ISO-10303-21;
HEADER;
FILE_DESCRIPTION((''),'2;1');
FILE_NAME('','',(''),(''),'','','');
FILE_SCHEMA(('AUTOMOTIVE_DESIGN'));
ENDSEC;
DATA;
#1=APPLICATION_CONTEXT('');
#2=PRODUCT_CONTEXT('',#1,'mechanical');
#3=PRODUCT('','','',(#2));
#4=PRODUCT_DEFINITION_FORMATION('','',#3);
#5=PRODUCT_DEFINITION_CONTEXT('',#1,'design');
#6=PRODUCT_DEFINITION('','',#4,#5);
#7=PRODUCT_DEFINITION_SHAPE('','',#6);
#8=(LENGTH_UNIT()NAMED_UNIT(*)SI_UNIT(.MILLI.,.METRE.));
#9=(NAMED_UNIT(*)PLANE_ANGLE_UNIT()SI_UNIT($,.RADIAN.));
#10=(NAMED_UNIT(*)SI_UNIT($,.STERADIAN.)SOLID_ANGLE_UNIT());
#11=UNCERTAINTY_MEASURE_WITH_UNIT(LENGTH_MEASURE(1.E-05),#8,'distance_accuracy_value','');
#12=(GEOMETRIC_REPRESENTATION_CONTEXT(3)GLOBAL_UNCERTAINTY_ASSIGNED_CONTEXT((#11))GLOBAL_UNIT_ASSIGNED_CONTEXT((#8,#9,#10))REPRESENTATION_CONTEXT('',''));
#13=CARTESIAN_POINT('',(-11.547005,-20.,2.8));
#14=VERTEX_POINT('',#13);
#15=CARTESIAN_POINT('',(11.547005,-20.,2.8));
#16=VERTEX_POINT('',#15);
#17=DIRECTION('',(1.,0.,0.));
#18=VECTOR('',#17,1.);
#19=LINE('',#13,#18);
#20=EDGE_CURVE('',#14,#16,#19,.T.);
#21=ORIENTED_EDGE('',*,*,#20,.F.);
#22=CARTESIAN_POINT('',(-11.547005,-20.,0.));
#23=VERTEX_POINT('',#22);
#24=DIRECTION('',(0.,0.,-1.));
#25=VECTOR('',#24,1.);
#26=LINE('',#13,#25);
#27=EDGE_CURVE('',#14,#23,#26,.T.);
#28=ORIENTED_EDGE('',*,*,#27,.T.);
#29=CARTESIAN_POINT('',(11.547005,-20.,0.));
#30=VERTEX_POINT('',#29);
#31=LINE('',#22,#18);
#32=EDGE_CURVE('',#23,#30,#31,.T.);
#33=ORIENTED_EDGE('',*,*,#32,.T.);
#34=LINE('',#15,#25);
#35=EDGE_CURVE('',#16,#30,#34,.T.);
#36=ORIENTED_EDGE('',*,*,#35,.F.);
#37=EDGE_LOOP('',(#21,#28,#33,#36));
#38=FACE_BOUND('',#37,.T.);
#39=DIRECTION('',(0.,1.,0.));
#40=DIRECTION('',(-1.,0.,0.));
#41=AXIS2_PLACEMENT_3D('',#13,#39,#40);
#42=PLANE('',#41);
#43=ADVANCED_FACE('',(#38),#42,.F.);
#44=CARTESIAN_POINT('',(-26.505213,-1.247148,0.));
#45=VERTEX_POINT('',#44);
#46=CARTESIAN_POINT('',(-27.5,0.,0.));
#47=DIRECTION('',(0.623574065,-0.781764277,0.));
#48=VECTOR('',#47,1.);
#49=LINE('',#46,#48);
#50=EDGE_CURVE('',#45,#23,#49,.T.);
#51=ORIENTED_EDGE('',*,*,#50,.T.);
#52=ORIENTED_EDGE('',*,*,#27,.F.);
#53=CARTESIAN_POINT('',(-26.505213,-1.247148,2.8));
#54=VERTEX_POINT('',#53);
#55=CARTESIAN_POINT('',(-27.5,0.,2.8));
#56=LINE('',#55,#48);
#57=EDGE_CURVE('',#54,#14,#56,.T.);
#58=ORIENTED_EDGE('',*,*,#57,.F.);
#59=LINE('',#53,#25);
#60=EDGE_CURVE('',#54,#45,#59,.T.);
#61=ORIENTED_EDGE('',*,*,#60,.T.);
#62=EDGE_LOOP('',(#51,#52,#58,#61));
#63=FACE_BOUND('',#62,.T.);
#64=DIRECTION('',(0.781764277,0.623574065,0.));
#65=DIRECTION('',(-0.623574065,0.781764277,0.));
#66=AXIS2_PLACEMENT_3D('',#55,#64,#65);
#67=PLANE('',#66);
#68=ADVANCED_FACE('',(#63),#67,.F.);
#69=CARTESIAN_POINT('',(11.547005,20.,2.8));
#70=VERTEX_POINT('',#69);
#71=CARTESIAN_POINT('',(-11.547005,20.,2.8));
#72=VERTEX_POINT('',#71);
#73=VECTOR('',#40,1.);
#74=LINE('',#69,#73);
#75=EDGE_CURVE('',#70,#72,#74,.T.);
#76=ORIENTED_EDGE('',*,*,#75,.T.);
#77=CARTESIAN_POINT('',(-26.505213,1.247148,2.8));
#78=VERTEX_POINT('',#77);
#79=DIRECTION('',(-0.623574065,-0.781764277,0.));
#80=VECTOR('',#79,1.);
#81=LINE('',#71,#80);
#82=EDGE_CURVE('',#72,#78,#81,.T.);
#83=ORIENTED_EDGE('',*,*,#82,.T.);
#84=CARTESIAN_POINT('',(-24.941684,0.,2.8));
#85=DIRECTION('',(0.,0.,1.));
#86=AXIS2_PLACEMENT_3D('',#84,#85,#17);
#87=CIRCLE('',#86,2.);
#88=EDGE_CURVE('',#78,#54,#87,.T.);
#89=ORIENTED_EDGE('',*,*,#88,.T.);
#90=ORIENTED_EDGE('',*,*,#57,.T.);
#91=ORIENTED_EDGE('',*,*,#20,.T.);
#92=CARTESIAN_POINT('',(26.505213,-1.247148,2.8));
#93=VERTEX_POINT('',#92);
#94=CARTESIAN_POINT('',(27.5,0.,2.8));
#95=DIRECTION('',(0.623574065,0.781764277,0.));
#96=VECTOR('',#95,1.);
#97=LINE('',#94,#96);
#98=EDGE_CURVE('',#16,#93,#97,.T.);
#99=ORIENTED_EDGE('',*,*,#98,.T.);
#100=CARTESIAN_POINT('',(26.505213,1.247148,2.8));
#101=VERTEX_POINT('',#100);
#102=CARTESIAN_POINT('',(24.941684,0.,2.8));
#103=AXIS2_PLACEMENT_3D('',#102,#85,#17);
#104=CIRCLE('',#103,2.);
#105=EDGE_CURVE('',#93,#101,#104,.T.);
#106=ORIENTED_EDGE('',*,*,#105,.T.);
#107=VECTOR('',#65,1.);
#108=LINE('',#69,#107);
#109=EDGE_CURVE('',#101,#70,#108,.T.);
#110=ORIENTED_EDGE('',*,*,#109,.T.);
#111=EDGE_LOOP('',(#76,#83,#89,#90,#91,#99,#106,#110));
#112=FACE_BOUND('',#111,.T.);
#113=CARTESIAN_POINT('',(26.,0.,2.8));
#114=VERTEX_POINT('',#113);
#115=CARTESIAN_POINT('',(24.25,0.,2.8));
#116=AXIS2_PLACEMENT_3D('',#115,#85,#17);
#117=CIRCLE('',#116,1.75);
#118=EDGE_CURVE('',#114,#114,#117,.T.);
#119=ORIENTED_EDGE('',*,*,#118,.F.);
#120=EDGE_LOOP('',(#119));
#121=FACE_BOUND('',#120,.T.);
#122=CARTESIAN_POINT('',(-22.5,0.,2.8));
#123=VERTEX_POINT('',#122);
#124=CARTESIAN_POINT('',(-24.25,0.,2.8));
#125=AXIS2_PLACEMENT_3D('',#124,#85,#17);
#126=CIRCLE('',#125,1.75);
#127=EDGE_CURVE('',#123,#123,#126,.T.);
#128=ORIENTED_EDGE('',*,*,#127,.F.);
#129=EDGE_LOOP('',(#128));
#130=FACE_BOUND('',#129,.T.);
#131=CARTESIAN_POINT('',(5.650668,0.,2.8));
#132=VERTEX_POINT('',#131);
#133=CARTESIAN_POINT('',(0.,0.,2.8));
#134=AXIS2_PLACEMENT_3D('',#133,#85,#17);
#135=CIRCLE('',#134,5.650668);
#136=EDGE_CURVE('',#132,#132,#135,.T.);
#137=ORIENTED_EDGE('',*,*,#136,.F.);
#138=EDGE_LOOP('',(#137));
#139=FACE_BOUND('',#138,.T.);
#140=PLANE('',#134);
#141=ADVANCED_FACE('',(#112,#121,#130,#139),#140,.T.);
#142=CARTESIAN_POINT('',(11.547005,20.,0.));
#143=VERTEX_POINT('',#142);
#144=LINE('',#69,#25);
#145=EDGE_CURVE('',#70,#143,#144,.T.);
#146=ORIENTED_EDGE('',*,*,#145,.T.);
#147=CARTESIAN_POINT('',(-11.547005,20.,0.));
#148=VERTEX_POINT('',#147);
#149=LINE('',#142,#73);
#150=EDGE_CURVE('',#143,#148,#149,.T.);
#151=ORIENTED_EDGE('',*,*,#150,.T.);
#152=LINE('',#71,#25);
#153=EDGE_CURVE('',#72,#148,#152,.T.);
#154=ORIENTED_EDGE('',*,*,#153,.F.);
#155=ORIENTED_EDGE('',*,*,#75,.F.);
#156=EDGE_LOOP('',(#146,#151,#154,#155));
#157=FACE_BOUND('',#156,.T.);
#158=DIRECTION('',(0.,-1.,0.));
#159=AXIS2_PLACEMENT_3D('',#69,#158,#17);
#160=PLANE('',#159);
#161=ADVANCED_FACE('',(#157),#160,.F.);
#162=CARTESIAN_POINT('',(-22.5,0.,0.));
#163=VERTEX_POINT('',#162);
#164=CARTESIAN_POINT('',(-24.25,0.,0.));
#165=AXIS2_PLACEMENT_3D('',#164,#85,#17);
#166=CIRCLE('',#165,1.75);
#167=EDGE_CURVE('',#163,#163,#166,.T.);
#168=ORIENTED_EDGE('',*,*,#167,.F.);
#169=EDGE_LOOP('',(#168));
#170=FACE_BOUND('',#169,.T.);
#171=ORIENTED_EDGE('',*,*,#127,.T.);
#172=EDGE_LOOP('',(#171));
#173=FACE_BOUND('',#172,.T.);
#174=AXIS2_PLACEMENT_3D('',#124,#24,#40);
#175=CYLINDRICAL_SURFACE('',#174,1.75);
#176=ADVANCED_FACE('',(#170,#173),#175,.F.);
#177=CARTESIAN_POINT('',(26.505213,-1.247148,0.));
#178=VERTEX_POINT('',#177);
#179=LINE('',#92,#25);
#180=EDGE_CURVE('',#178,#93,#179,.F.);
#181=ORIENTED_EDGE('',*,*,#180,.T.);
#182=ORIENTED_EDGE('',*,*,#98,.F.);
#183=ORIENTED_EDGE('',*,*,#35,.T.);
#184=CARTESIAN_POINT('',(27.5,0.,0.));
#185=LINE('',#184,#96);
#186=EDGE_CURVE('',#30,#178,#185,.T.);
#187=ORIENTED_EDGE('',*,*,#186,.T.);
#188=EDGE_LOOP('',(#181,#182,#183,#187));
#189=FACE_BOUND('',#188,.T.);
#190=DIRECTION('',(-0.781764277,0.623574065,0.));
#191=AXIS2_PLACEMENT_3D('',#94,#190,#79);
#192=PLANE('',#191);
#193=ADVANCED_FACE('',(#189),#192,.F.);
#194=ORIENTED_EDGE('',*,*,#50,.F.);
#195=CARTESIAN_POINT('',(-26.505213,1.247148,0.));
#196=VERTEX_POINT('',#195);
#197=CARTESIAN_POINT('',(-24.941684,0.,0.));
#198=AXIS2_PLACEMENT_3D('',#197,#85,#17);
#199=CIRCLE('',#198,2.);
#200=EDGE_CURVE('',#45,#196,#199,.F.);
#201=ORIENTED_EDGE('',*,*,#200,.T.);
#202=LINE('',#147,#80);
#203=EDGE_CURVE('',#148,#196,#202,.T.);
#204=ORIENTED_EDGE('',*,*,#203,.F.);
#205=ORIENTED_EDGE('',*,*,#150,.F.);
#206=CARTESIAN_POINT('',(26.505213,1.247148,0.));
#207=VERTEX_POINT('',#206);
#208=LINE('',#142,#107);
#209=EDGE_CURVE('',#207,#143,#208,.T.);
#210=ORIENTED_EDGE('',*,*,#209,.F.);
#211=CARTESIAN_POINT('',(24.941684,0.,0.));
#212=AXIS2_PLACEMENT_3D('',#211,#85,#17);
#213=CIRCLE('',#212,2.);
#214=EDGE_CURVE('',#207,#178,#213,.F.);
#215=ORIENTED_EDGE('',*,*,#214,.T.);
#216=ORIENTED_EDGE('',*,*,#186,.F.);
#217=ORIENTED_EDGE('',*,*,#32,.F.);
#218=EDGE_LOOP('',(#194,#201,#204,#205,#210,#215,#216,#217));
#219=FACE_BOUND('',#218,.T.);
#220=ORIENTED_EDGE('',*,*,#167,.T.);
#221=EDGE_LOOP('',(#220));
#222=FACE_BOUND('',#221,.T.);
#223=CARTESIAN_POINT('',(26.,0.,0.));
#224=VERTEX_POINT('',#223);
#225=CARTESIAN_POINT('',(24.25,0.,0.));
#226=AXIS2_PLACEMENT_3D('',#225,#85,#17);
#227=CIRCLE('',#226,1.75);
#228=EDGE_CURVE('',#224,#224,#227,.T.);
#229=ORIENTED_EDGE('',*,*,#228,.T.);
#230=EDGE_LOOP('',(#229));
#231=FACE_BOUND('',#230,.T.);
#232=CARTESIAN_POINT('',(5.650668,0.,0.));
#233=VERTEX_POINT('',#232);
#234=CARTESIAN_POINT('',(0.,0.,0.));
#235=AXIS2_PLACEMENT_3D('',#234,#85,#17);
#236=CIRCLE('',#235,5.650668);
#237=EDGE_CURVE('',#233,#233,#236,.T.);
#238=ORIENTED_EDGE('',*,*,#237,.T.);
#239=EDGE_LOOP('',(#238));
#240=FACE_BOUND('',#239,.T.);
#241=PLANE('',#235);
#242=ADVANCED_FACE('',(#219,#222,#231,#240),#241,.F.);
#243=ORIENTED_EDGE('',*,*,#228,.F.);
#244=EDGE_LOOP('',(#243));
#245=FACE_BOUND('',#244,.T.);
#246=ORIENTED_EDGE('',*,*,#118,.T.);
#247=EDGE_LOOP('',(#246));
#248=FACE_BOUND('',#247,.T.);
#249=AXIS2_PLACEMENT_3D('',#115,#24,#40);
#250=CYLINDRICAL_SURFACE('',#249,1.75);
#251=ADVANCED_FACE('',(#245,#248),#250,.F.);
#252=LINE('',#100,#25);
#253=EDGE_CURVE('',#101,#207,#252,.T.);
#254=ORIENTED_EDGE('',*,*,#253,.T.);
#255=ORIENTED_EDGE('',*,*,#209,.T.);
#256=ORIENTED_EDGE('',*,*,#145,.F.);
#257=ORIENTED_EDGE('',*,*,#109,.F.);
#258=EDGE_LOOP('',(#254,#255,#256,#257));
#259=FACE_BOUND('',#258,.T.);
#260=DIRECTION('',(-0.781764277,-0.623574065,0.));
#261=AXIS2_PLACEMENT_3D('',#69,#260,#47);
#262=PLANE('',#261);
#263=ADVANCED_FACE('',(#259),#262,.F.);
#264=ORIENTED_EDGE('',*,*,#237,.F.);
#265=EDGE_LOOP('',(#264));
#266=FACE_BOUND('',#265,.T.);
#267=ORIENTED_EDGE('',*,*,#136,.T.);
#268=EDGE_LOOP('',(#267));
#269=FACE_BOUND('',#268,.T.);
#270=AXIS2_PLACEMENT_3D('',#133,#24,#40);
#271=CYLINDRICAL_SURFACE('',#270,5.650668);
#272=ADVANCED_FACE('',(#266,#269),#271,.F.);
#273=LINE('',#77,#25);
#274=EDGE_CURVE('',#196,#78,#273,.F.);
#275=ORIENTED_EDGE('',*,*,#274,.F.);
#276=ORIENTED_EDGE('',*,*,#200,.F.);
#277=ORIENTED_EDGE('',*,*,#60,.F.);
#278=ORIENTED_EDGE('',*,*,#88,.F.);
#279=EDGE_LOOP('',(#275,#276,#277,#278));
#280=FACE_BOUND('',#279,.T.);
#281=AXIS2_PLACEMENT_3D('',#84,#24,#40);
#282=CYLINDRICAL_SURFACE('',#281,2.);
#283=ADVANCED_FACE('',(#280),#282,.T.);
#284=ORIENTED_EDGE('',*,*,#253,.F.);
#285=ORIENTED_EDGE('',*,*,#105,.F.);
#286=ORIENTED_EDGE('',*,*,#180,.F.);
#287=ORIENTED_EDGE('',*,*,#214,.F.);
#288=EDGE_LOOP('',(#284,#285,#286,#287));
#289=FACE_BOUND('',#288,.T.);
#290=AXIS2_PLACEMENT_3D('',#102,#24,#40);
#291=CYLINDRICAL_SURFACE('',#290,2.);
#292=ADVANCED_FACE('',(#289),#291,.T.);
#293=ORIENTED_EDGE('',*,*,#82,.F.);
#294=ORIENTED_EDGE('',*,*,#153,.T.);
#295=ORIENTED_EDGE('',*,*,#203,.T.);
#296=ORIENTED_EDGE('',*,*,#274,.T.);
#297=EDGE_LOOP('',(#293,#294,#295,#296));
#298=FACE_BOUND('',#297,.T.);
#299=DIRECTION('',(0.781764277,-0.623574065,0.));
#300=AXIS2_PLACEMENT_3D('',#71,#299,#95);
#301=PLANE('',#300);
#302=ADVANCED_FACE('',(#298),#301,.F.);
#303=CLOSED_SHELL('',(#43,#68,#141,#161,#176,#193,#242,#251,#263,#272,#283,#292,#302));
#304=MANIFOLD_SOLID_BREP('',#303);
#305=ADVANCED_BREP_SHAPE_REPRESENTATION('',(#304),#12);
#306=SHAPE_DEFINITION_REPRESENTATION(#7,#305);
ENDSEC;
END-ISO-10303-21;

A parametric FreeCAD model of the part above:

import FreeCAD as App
import Part
import Sketcher
Q = App.Units.Quantity


def edges_at(feature, points):
    """Names of the edges that pass closest to the given points."""
    edges = feature.Shape.Edges
    near = lambda p: min(range(len(edges)), key=lambda i: edges[i].distToShape(Part.Vertex(*p))[0])
    return sorted({f"Edge{near(p) + 1}" for p in points})


def add_polygon(sketch, points):
    """Adds a closed chain of lines whose ends are joined by coincident constraints."""
    first, n = sketch.GeometryCount, len(points)
    for a, b in zip(points, points[1:] + points[:1]):
        sketch.addGeometry(Part.LineSegment(App.Vector(*a, 0), App.Vector(*b, 0)), False)
    for i in range(n):
        sketch.addConstraint(Sketcher.Constraint("Coincident", first + i, 2, first + (i + 1) % n, 1))

doc = App.newDocument("Part")
body = doc.addObject("PartDesign::Body", "Body")

sketch1 = body.newObject("Sketcher::SketchObject", "Sketch")
sketch1.AttachmentSupport = (doc.getObject("XY_Plane"), [""])
sketch1.MapMode = "FlatFace"
add_polygon(sketch1, [(27.5, 0), (11.5, 20), (-11.5, 20), (-27.5, 0), (-11.5, -20), (11.5, -20)])
sketch1.addGeometry(Part.Circle(App.Vector(24.2, 0, 0), App.Vector(0, 0, 1), 1.8), False)
sketch1.addGeometry(Part.Circle(App.Vector(0, 0, 0), App.Vector(0, 0, 1), 5.7), False)
sketch1.addGeometry(Part.Circle(App.Vector(-24.2, 0, 0), App.Vector(0, 0, 1), 1.8), False)
sketch1.addConstraint(Sketcher.Constraint("Horizontal", 1))
sketch1.addConstraint(Sketcher.Constraint("Horizontal", 4))
sketch1.addConstraint(Sketcher.Constraint("Coincident", 7, 3, -1, 1))
sketch1.addConstraint(Sketcher.Constraint("Equal", 6, 8))
sketch1.addConstraint(Sketcher.Constraint("Symmetric", 6, 3, 8, 3, -1, 1))
sketch1.addConstraint(Sketcher.Constraint("Symmetric", 0, 2, 3, 2, -1, 1))
sketch1.addConstraint(Sketcher.Constraint("Symmetric", 2, 2, 5, 2, -1, 1))
sketch1.addConstraint(Sketcher.Constraint("PointOnObject", 6, 3, -1))
sketch1.addConstraint(Sketcher.Constraint("PointOnObject", 2, 2, -1))
sketch1.addConstraint(Sketcher.Constraint("Parallel", 2, 5))
sketch1.addConstraint(Sketcher.Constraint("Vertical", 1, 2, 3, 2))
sketch1.addConstraint(Sketcher.Constraint("Diameter", 6, Q("3.5 mm")))
sketch1.addConstraint(Sketcher.Constraint("DistanceY", -1, 1, 0, 2, Q("20 mm")))
sketch1.addConstraint(Sketcher.Constraint("DistanceX", 2, 2, -1, 1, Q("27.5 mm")))
sketch1.addConstraint(Sketcher.Constraint("DistanceX", 8, 3, 6, 3, Q("48.5 mm")))
sketch1.addConstraint(Sketcher.Constraint("Diameter", 7, Q("11.301336 mm")))
sketch1.addConstraint(Sketcher.Constraint("DistanceX", 1, 2, 1, 1, Q("23.094011 mm")))
pad1 = body.newObject("PartDesign::Pad", "Pad")
pad1.Profile = sketch1
pad1.Length = 2.8
doc.recompute()

fillet = body.newObject("PartDesign::Fillet", "Fillet")
fillet.Base = (pad1, edges_at(pad1, [(27.5, 0, 1.4), (-27.5, 0, 1.4)]))
fillet.Radius = 2

doc.recompute()
